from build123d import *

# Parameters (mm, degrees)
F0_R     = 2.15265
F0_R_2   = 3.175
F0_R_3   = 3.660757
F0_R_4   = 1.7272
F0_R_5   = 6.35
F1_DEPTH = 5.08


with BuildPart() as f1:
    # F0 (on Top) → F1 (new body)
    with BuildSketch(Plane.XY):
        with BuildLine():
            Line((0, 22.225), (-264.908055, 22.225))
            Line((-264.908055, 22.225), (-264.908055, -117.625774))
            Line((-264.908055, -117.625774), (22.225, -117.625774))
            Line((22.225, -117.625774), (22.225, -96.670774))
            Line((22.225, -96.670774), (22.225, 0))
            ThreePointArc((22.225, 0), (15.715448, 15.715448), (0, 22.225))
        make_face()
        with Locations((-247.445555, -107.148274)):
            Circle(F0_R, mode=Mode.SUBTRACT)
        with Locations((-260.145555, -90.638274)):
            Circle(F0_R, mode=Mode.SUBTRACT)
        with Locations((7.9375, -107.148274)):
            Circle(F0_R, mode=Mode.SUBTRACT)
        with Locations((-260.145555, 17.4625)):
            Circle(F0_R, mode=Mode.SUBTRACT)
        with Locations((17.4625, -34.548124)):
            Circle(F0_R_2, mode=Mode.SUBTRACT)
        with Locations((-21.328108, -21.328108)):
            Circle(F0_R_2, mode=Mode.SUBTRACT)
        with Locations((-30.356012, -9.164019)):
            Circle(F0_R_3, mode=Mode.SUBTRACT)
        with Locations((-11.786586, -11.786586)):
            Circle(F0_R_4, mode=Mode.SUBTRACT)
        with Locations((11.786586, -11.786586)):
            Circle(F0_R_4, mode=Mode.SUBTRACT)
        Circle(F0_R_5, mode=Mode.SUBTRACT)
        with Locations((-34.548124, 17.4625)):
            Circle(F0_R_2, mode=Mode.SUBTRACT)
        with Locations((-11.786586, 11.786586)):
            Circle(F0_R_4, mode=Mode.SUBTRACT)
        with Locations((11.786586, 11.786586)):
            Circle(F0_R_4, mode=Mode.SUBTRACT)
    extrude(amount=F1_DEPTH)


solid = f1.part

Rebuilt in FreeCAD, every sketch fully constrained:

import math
import FreeCAD as App
import Part
import Sketcher
Q = App.Units.Quantity

doc = App.newDocument("Part")
body = doc.addObject("PartDesign::Body", "Body")

sketch1 = doc.addObject("Sketcher::SketchObject", "Sketch")
body.addObject(sketch1)
sketch1.AttachmentSupport = (doc.XY_Plane, [""])
sketch1.MapMode = "FlatFace"
sketch1.addGeometry(Part.LineSegment(App.Vector(0, 22.2, 0), App.Vector(-264.9, 22.2, 0)), False)
sketch1.addGeometry(Part.LineSegment(App.Vector(-264.9, 22.2, 0), App.Vector(-264.9, -117.6, 0)), False)
sketch1.addGeometry(Part.LineSegment(App.Vector(-264.9, -117.6, 0), App.Vector(22.2, -117.6, 0)), False)
sketch1.addGeometry(Part.LineSegment(App.Vector(22.2, -117.6, 0), App.Vector(22.2, 0, 0)), False)
sketch1.addGeometry(Part.ArcOfCircle(Part.Circle(App.Vector(0, 0, 0), App.Vector(0, 0, 1), 22.2), math.radians(0), math.radians(90)), False)
sketch1.addGeometry(Part.Circle(App.Vector(-247.4, -107.1, 0), App.Vector(0, 0, 1), 2.2), False)
sketch1.addGeometry(Part.Circle(App.Vector(-260.1, -90.6, 0), App.Vector(0, 0, 1), 2.2), False)
sketch1.addGeometry(Part.Circle(App.Vector(7.9, -107.1, 0), App.Vector(0, 0, 1), 2.2), False)
sketch1.addGeometry(Part.Circle(App.Vector(-260.1, 17.5, 0), App.Vector(0, 0, 1), 2.2), False)
sketch1.addGeometry(Part.Circle(App.Vector(17.5, -34.5, 0), App.Vector(0, 0, 1), 3.2), False)
sketch1.addGeometry(Part.Circle(App.Vector(-21.3, -21.3, 0), App.Vector(0, 0, 1), 3.2), False)
sketch1.addGeometry(Part.Circle(App.Vector(-30.4, -9.2, 0), App.Vector(0, 0, 1), 3.7), False)
sketch1.addGeometry(Part.Circle(App.Vector(-11.8, -11.8, 0), App.Vector(0, 0, 1), 1.7), False)
sketch1.addGeometry(Part.Circle(App.Vector(11.8, -11.8, 0), App.Vector(0, 0, 1), 1.7), False)
sketch1.addGeometry(Part.Circle(App.Vector(0, 0, 0), App.Vector(0, 0, 1), 6.3), False)
sketch1.addGeometry(Part.Circle(App.Vector(-34.5, 17.5, 0), App.Vector(0, 0, 1), 3.2), False)
sketch1.addGeometry(Part.Circle(App.Vector(-11.8, 11.8, 0), App.Vector(0, 0, 1), 1.7), False)
sketch1.addGeometry(Part.Circle(App.Vector(11.8, 11.8, 0), App.Vector(0, 0, 1), 1.7), False)
sketch1.addConstraint(Sketcher.Constraint("Coincident", 0, 2, 1, 1))
sketch1.addConstraint(Sketcher.Constraint("Coincident", 1, 2, 2, 1))
sketch1.addConstraint(Sketcher.Constraint("Coincident", 2, 2, 3, 1))
sketch1.addConstraint(Sketcher.Constraint("Tangent", 3, 2, 4, 1))
sketch1.addConstraint(Sketcher.Constraint("Tangent", 4, 2, 0, 1))
sketch1.addConstraint(Sketcher.Constraint("Horizontal", 0))
sketch1.addConstraint(Sketcher.Constraint("Vertical", 1))
sketch1.addConstraint(Sketcher.Constraint("Horizontal", 2))
sketch1.addConstraint(Sketcher.Constraint("Vertical", 3))
sketch1.addConstraint(Sketcher.Constraint("Coincident", 4, 3, -1, 1))
sketch1.addConstraint(Sketcher.Constraint("Coincident", 14, 3, -1, 1))
sketch1.addConstraint(Sketcher.Constraint("Equal", 5, 6))
sketch1.addConstraint(Sketcher.Constraint("Equal", 6, 7))
sketch1.addConstraint(Sketcher.Constraint("Equal", 7, 8))
sketch1.addConstraint(Sketcher.Constraint("Equal", 9, 10))
sketch1.addConstraint(Sketcher.Constraint("Equal", 12, 13))
sketch1.addConstraint(Sketcher.Constraint("Equal", 10, 15))
sketch1.addConstraint(Sketcher.Constraint("Equal", 13, 16))
sketch1.addConstraint(Sketcher.Constraint("Equal", 16, 17))
sketch1.addConstraint(Sketcher.Constraint("Symmetric", 13, 3, 16, 3, -1, 1))
sketch1.addConstraint(Sketcher.Constraint("Symmetric", 12, 3, 17, 3, -1, 1))
sketch1.addConstraint(Sketcher.Constraint("Symmetric", 12, 3, 13, 3, -2))
sketch1.addConstraint(Sketcher.Constraint("Horizontal", 5, 3, 7, 3))
sketch1.addConstraint(Sketcher.Constraint("Horizontal", 8, 3, 15, 3))
sketch1.addConstraint(Sketcher.Constraint("Vertical", 6, 3, 8, 3))
sketch1.addConstraint(Sketcher.Constraint("Diameter", 14, Q("0.5 in")))
sketch1.addConstraint(Sketcher.Constraint("Diameter", 9, Q("0.25 in")))
sketch1.addConstraint(Sketcher.Constraint("Diameter", 12, Q("0.136 in")))
sketch1.addConstraint(Sketcher.Constraint("Radius", 4, Q("0.875 in")))
sketch1.addConstraint(Sketcher.Constraint("Diameter", 5, Q("0.1695 in")))
sketch1.addConstraint(Sketcher.Constraint("DistanceX", 6, 3, 5, 3, Q("0.5 in")))
sketch1.addConstraint(Sketcher.Constraint("DistanceY", 5, 3, 6, 3, Q("0.65 in")))
sketch1.addConstraint(Sketcher.Constraint("DistanceX", -1, 1, 7, 3, Q("0.3125 in")))
sketch1.addConstraint(Sketcher.Constraint("DistanceY", -1, 1, 8, 3, Q("0.6875 in")))
sketch1.addConstraint(Sketcher.Constraint("DistanceX", -1, 1, 9, 3, Q("0.6875 in")))
sketch1.addConstraint(Sketcher.Constraint("DistanceX", 0, 2, 8, 3, Q("0.1875 in")))
sketch1.addConstraint(Sketcher.Constraint("DistanceY", 1, 2, 6, 3, Q("1.0625 in")))
sketch1.addConstraint(Sketcher.Constraint("Diameter", 11, Q("7.321514 mm")))
sketch1.addConstraint(Sketcher.Constraint("DistanceX", 0, 2, 0, 1, Q("264.908055 mm")))
sketch1.addConstraint(Sketcher.Constraint("DistanceY", 1, 2, 1, 1, Q("139.850774 mm")))
sketch1.addConstraint(Sketcher.Constraint("DistanceX", 10, 3, -1, 1, Q("21.328108 mm")))
sketch1.addConstraint(Sketcher.Constraint("DistanceY", 10, 3, -1, 1, Q("21.328108 mm")))
sketch1.addConstraint(Sketcher.Constraint("DistanceX", 11, 3, -1, 1, Q("30.356012 mm")))
sketch1.addConstraint(Sketcher.Constraint("DistanceY", 11, 3, -1, 1, Q("9.164019 mm")))
sketch1.addConstraint(Sketcher.Constraint("DistanceY", 7, 3, 9, 3, Q("72.60015 mm")))
sketch1.addConstraint(Sketcher.Constraint("DistanceY", 9, 3, 12, 3, Q("22.761538 mm")))
sketch1.addConstraint(Sketcher.Constraint("DistanceX", 12, 3, 13, 3, Q("23.573172 mm")))
sketch1.addConstraint(Sketcher.Constraint("DistanceX", 15, 3, 12, 3, Q("22.761538 mm")))
pad1 = doc.addObject("PartDesign::Pad", "Pad")
body.addObject(pad1)
pad1.Profile = sketch1
pad1.Length = Q("0.2 in")

doc.recompute()
